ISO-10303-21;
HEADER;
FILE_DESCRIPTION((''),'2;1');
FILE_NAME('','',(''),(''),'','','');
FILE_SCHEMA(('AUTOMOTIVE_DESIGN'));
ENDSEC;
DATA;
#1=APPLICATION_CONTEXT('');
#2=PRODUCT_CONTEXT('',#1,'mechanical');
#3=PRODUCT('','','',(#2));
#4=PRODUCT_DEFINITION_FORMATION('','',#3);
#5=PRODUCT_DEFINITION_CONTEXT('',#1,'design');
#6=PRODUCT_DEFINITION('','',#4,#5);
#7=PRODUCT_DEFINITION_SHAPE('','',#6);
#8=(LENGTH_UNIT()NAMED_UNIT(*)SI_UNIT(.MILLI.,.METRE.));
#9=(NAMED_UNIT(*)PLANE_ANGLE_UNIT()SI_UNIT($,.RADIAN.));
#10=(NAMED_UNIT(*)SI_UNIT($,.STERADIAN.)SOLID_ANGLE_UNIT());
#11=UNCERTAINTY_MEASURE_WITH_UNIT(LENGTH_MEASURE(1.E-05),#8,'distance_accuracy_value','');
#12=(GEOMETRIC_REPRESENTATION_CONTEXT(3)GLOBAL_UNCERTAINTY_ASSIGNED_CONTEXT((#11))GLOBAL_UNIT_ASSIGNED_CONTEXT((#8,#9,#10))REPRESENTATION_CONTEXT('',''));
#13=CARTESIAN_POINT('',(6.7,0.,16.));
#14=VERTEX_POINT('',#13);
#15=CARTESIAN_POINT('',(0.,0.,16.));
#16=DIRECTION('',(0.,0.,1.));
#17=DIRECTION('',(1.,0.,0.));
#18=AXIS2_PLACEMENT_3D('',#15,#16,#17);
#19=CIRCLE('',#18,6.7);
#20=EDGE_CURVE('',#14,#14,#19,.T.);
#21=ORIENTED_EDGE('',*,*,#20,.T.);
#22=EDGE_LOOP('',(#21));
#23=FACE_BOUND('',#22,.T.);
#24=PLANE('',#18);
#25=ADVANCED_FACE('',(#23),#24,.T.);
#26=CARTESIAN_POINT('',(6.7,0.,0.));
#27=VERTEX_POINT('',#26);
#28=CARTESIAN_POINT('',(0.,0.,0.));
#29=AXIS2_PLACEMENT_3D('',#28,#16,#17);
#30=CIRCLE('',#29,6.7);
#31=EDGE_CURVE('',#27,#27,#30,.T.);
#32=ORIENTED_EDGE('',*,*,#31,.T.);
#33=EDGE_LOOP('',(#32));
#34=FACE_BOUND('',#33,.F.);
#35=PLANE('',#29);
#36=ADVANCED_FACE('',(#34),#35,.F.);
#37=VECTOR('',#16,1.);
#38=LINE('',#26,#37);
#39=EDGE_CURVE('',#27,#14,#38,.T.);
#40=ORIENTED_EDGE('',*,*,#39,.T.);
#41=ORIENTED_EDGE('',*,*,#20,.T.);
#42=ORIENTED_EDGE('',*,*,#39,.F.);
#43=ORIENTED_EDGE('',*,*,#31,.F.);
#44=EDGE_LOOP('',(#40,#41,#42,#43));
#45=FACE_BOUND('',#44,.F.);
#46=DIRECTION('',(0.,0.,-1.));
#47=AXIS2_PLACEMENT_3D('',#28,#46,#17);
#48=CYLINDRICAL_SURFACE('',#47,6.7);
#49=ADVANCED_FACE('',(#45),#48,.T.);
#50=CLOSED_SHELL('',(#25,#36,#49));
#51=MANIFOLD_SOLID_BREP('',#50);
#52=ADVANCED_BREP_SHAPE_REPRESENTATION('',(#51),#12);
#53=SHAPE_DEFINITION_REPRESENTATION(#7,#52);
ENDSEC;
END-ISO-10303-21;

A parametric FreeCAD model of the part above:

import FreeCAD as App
import Part
import Sketcher
Q = App.Units.Quantity

doc = App.newDocument("Part")
body = doc.addObject("PartDesign::Body", "Body")

sketch1 = body.newObject("Sketcher::SketchObject", "Sketch")
sketch1.AttachmentSupport = (doc.getObject("XY_Plane"), [""])
sketch1.MapMode = "FlatFace"
sketch1.addGeometry(Part.Circle(App.Vector(0, 0, 0), App.Vector(0, 0, 1), 6.7), False)
sketch1.addConstraint([
    Sketcher.Constraint("Coincident", 0, 3, -1, 1),
    Sketcher.Constraint("Diameter", 0, Q("13.4 mm")),
])
pad1 = body.newObject("PartDesign::Pad", "Pad")
pad1.Profile = sketch1
pad1.Length = 16

doc.recompute()
